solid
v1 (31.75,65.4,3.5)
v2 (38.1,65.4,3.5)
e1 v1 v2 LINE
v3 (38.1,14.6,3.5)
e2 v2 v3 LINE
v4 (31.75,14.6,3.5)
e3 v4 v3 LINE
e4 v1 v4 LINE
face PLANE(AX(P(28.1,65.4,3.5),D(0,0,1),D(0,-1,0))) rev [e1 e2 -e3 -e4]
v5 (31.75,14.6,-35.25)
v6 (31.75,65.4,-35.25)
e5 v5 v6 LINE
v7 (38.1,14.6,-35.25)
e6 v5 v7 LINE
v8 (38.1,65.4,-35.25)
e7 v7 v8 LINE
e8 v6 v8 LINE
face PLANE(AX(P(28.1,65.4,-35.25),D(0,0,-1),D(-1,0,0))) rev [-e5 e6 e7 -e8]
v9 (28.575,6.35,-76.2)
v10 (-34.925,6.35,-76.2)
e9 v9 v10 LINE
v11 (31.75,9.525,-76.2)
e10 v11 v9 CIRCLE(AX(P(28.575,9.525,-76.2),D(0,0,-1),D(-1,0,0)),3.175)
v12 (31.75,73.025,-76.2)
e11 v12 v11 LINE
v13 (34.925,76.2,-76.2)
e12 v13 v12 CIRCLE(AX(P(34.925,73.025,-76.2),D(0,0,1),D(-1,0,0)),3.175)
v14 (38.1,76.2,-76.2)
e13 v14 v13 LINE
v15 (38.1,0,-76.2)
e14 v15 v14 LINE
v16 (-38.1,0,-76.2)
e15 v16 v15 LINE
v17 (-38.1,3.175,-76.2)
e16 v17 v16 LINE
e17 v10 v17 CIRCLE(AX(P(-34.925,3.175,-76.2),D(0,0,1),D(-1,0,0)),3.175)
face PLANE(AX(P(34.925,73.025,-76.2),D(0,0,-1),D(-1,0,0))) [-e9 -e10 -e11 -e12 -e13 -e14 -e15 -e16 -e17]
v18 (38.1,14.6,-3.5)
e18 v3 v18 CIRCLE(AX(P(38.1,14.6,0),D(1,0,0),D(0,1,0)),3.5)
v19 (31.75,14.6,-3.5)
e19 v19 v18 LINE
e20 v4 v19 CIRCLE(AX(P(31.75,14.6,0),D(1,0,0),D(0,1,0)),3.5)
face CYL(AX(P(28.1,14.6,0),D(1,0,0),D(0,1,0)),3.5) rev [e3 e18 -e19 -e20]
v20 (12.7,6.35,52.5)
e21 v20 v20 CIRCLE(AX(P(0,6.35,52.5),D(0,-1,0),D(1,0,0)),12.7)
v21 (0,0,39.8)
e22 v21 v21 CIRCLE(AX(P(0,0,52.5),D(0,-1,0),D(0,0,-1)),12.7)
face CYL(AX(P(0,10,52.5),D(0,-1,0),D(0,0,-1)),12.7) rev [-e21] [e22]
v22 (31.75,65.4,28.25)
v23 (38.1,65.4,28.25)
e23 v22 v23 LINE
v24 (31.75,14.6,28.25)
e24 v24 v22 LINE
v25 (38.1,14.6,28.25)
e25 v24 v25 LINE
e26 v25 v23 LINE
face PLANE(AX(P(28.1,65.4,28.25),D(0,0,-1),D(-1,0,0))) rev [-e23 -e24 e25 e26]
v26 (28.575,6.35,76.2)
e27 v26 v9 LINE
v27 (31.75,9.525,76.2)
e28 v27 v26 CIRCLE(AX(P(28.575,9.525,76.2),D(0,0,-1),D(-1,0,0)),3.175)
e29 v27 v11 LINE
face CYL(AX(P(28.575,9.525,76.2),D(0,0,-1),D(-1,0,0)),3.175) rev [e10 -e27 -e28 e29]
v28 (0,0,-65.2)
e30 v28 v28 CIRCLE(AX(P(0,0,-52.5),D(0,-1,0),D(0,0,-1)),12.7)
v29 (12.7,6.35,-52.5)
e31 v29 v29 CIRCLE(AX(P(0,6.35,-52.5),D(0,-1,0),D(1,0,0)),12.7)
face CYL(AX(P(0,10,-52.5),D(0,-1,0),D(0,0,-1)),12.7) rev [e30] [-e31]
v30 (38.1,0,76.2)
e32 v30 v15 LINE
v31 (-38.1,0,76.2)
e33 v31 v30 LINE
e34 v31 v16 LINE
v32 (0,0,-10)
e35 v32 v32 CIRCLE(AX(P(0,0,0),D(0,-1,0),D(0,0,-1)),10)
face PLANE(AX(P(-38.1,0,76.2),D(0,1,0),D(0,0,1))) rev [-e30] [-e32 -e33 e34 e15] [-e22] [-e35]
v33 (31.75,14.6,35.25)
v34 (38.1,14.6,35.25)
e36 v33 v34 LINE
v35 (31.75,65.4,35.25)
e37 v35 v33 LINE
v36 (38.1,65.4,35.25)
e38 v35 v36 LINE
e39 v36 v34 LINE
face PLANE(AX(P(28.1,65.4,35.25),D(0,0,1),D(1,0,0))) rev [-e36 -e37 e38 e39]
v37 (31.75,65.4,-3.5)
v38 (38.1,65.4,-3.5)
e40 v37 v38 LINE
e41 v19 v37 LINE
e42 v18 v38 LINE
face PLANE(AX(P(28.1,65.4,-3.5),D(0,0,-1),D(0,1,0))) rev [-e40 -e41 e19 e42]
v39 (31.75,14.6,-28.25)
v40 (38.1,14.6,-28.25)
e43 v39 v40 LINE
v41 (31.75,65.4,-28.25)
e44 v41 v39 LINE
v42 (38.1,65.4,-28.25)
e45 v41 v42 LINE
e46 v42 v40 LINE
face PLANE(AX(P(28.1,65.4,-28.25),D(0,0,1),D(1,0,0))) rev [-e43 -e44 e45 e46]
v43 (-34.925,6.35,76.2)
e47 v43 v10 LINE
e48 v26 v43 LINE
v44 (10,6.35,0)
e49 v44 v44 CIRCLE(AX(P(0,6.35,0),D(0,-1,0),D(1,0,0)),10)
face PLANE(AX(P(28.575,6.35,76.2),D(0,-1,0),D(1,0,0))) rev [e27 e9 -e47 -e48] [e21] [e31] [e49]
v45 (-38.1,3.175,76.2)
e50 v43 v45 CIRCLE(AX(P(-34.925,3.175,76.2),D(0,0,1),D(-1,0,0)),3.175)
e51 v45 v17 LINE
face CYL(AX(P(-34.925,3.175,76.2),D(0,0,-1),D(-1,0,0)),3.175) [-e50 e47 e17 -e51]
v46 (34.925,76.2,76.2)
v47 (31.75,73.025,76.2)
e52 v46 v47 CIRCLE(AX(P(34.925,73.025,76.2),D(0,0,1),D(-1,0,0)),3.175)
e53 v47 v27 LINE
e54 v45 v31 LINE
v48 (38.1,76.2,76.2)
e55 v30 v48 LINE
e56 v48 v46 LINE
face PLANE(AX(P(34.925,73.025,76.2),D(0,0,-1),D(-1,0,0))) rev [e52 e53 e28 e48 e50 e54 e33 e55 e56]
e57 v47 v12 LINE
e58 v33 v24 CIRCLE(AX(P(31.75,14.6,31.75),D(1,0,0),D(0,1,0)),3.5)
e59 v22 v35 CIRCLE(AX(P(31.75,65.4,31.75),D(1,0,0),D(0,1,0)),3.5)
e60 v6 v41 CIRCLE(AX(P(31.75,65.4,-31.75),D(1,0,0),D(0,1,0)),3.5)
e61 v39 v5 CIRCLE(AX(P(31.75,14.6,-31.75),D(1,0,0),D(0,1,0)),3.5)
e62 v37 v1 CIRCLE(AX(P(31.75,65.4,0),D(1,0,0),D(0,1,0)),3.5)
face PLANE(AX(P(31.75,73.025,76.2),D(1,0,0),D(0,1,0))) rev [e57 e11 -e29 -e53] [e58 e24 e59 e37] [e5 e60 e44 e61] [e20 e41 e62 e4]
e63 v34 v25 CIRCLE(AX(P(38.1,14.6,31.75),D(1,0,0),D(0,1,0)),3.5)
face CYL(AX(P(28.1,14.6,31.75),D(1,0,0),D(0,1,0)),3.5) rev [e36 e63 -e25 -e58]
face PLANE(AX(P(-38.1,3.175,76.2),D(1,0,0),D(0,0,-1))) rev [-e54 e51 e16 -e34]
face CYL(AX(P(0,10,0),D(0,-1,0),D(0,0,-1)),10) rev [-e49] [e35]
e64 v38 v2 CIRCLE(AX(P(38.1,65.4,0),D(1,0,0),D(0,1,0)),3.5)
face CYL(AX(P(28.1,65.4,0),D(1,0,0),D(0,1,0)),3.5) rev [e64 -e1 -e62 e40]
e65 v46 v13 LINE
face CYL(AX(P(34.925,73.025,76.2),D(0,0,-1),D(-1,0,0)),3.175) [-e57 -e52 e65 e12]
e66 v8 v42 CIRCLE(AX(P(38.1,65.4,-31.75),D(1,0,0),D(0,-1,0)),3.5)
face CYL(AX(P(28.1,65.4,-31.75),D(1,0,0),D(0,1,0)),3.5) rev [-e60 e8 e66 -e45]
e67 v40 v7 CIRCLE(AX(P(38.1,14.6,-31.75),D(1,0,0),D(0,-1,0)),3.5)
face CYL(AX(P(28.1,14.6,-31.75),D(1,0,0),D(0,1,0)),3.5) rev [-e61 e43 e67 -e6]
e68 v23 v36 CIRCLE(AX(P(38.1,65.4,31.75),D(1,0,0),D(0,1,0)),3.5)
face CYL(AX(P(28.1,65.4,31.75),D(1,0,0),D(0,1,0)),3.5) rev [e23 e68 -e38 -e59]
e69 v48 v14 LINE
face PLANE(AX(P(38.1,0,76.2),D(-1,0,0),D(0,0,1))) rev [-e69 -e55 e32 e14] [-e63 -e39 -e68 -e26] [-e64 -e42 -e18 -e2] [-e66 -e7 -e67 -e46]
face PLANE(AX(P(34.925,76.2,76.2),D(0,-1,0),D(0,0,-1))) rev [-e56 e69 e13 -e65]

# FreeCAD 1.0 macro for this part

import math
import FreeCAD as App
import Part
import Sketcher
from FreeCAD import Vector
Q = App.Units.Quantity

doc = App.newDocument("Part")
body = doc.addObject("PartDesign::Body", "Body")

# Sketch on XY plane
sketch1 = doc.addObject("Sketcher::SketchObject", "Sketch")
body.addObject(sketch1)
sketch1.AttachmentSupport = (doc.XY_Plane, [""])
sketch1.MapMode = "FlatFace"
sketch1.addGeometry([
    Part.LineSegment(Vector(-38.1, 0, 0), Vector(38.1, 0, 0)),  # 0
    Part.LineSegment(Vector(38.1, 0, 0), Vector(38.1, 76.2, 0)),  # 1
    Part.LineSegment(Vector(38.1, 76.2, 0), Vector(34.9, 76.2, 0)),  # 2
    Part.ArcOfCircle(Part.Circle(Vector(34.9, 73, 0), Vector(0, 0, 1), 3.2), math.radians(90), math.radians(180)),  # 3
    Part.LineSegment(Vector(31.8, 73, 0), Vector(31.8, 9.5, 0)),  # 4
    Part.ArcOfCircle(Part.Circle(Vector(28.6, 9.5, 0), Vector(0, 0, 1), 3.2), math.radians(-90), math.radians(0)),  # 5
    Part.LineSegment(Vector(28.6, 6.3, 0), Vector(-34.9, 6.3, 0)),  # 6
    Part.ArcOfCircle(Part.Circle(Vector(-34.9, 3.2, 0), Vector(0, 0, 1), 3.2), math.radians(90), math.radians(180)),  # 7
    Part.LineSegment(Vector(-38.1, 3.2, 0), Vector(-38.1, 0, 0)),  # 8
], False)
sketch1.addConstraint([
    Sketcher.Constraint("Coincident", 0, 2, 1, 1),
    Sketcher.Constraint("Coincident", 1, 2, 2, 1),
    Sketcher.Constraint("Tangent", 2, 2, 3, 1),
    Sketcher.Constraint("Tangent", 3, 2, 4, 1),
    Sketcher.Constraint("Tangent", 4, 2, 5, 2),
    Sketcher.Constraint("Tangent", 5, 1, 6, 1),
    Sketcher.Constraint("Tangent", 6, 2, 7, 1),
    Sketcher.Constraint("Tangent", 7, 2, 8, 1),
    Sketcher.Constraint("Coincident", 8, 2, 0, 1),
    Sketcher.Constraint("Horizontal", 0),
    Sketcher.Constraint("Vertical", 1),
    Sketcher.Constraint("Horizontal", 2),
    Sketcher.Constraint("Vertical", 4),
    Sketcher.Constraint("Horizontal", 6),
    Sketcher.Constraint("Vertical", 8),
    Sketcher.Constraint("Equal", 3, 5),
    Sketcher.Constraint("Equal", 5, 7),
    Sketcher.Constraint("Symmetric", 0, 2, 8, 2, -1, 1),
    Sketcher.Constraint("Equal", 0, 1),
    Sketcher.Constraint("Equal", 6, 4),
    Sketcher.Constraint("DistanceX", 0, 1, 0, 2, Q("3 in")),
    Sketcher.Constraint("DistanceX", 6, 2, 6, 1, Q("2.5 in")),
    Sketcher.Constraint("Radius", 3, Q("0.125 in")),
])
pad1 = doc.addObject("PartDesign::Pad", "Pad")
body.addObject(pad1)
pad1.Profile = sketch1
pad1.Length = Q("6 in")
pad1.Midplane = True

# Sketch on YZ plane
sketch2 = doc.addObject("Sketcher::SketchObject", "Sketch001")
body.addObject(sketch2)
sketch2.AttachmentSupport = (doc.YZ_Plane, [""])
sketch2.MapMode = "FlatFace"
sketch2.AttachmentOffset = App.Placement(Vector(0, 0, 1.5 * 25.4), App.Rotation())
sketch2.addGeometry([
    Part.LineSegment(Vector(14.6, 28.2, 0), Vector(65.4, 28.2, 0)),  # 0
    Part.ArcOfCircle(Part.Circle(Vector(65.4, 31.8, 0), Vector(0, 0, 1), 3.5), math.radians(-90), math.radians(90)),  # 1
    Part.LineSegment(Vector(65.4, 35.2, 0), Vector(14.6, 35.2, 0)),  # 2
    Part.ArcOfCircle(Part.Circle(Vector(14.6, 31.8, 0), Vector(0, 0, 1), 3.5), math.radians(90), math.radians(270)),  # 3
    Part.LineSegment(Vector(65.4, -28.2, 0), Vector(14.6, -28.2, 0)),  # 4
    Part.ArcOfCircle(Part.Circle(Vector(14.6, -31.8, 0), Vector(0, 0, 1), 3.5), math.radians(90), math.radians(270)),  # 5
    Part.LineSegment(Vector(14.6, -35.2, 0), Vector(65.4, -35.2, 0)),  # 6
    Part.ArcOfCircle(Part.Circle(Vector(65.4, -31.8, 0), Vector(0, 0, 1), 3.5), math.radians(-90), math.radians(90)),  # 7
    Part.LineSegment(Vector(14.6, -3.5, 0), Vector(65.4, -3.5, 0)),  # 8
    Part.ArcOfCircle(Part.Circle(Vector(65.4, 0, 0), Vector(0, 0, 1), 3.5), math.radians(-90), math.radians(90)),  # 9
    Part.LineSegment(Vector(65.4, 3.5, 0), Vector(14.6, 3.5, 0)),  # 10
    Part.ArcOfCircle(Part.Circle(Vector(14.6, 0, 0), Vector(0, 0, 1), 3.5), math.radians(90), math.radians(270)),  # 11
], False)
sketch2.addConstraint([
    Sketcher.Constraint("Tangent", 0, 2, 1, 1),
    Sketcher.Constraint("Tangent", 1, 2, 2, 1),
    Sketcher.Constraint("Tangent", 2, 2, 3, 1),
    Sketcher.Constraint("Tangent", 3, 2, 0, 1),
    Sketcher.Constraint("Tangent", 4, 2, 5, 1),
    Sketcher.Constraint("Tangent", 5, 2, 6, 1),
    Sketcher.Constraint("Tangent", 6, 2, 7, 1),
    Sketcher.Constraint("Tangent", 7, 2, 4, 1),
    Sketcher.Constraint("Tangent", 8, 2, 9, 1),
    Sketcher.Constraint("Tangent", 9, 2, 10, 1),
    Sketcher.Constraint("Tangent", 10, 2, 11, 1),
    Sketcher.Constraint("Tangent", 11, 2, 8, 1),
    Sketcher.Constraint("Horizontal", 0),
    Sketcher.Constraint("Horizontal", 2),
    Sketcher.Constraint("Horizontal", 4),
    Sketcher.Constraint("Horizontal", 6),
    Sketcher.Constraint("Horizontal", 8),
    Sketcher.Constraint("Horizontal", 10),
    Sketcher.Constraint("Equal", 3, 5),
    Sketcher.Constraint("Equal", 7, 9),
    Sketcher.Constraint("Symmetric", 3, 3, 5, 3, -1),
    Sketcher.Constraint("PointOnObject", 9, 3, -1),
    Sketcher.Constraint("Vertical", 1, 3, 7, 3),
    Sketcher.Constraint("Vertical", 7, 3, 9, 3),
    Sketcher.Constraint("Vertical", 5, 3, 11, 3),
    Sketcher.Constraint("DistanceX", 0, 1, 0, 2, Q("2 in")),
    Sketcher.Constraint("DistanceY", 5, 3, 3, 3, Q("2.5 in")),
    Sketcher.Constraint("Radius", 1, Q("3.5 mm")),
    Sketcher.Constraint("DistanceX", -1, 1, 1, 3, Q("65.4 mm")),
])
pocket1 = doc.addObject("PartDesign::Pocket", "Pocket")
body.addObject(pocket1)
pocket1.Profile = sketch2
pocket1.Length = 10

# Sketch on XZ plane
sketch3 = doc.addObject("Sketcher::SketchObject", "Sketch002")
body.addObject(sketch3)
sketch3.AttachmentSupport = (doc.XZ_Plane, [""])
sketch3.MapMode = "FlatFace"
sketch3.addGeometry([
    Part.Circle(Vector(0, 0, 0), Vector(0, 0, 1), 10),
    Part.Circle(Vector(0, 52, 0), Vector(0, 0, 1), 13),
    Part.Circle(Vector(0, -52, 0), Vector(0, 0, 1), 13),
], False)
sketch3.addConstraint([
    Sketcher.Constraint("Coincident", 0, 3, -1, 1),
    Sketcher.Constraint("Equal", 1, 2),
    Sketcher.Constraint("Symmetric", 1, 3, 2, 3, -1, 1),
    Sketcher.Constraint("PointOnObject", 1, 3, -2),
    Sketcher.Constraint("Diameter", 1, Q("1 in")),
    Sketcher.Constraint("Diameter", 0, Q("20 mm")),
    Sketcher.Constraint("DistanceY", -1, 1, 1, 3, Q("52.5 mm")),
])
pocket2 = doc.addObject("PartDesign::Pocket", "Pocket001")
body.addObject(pocket2)
pocket2.Profile = sketch3
pocket2.Length = 10

doc.recompute()
